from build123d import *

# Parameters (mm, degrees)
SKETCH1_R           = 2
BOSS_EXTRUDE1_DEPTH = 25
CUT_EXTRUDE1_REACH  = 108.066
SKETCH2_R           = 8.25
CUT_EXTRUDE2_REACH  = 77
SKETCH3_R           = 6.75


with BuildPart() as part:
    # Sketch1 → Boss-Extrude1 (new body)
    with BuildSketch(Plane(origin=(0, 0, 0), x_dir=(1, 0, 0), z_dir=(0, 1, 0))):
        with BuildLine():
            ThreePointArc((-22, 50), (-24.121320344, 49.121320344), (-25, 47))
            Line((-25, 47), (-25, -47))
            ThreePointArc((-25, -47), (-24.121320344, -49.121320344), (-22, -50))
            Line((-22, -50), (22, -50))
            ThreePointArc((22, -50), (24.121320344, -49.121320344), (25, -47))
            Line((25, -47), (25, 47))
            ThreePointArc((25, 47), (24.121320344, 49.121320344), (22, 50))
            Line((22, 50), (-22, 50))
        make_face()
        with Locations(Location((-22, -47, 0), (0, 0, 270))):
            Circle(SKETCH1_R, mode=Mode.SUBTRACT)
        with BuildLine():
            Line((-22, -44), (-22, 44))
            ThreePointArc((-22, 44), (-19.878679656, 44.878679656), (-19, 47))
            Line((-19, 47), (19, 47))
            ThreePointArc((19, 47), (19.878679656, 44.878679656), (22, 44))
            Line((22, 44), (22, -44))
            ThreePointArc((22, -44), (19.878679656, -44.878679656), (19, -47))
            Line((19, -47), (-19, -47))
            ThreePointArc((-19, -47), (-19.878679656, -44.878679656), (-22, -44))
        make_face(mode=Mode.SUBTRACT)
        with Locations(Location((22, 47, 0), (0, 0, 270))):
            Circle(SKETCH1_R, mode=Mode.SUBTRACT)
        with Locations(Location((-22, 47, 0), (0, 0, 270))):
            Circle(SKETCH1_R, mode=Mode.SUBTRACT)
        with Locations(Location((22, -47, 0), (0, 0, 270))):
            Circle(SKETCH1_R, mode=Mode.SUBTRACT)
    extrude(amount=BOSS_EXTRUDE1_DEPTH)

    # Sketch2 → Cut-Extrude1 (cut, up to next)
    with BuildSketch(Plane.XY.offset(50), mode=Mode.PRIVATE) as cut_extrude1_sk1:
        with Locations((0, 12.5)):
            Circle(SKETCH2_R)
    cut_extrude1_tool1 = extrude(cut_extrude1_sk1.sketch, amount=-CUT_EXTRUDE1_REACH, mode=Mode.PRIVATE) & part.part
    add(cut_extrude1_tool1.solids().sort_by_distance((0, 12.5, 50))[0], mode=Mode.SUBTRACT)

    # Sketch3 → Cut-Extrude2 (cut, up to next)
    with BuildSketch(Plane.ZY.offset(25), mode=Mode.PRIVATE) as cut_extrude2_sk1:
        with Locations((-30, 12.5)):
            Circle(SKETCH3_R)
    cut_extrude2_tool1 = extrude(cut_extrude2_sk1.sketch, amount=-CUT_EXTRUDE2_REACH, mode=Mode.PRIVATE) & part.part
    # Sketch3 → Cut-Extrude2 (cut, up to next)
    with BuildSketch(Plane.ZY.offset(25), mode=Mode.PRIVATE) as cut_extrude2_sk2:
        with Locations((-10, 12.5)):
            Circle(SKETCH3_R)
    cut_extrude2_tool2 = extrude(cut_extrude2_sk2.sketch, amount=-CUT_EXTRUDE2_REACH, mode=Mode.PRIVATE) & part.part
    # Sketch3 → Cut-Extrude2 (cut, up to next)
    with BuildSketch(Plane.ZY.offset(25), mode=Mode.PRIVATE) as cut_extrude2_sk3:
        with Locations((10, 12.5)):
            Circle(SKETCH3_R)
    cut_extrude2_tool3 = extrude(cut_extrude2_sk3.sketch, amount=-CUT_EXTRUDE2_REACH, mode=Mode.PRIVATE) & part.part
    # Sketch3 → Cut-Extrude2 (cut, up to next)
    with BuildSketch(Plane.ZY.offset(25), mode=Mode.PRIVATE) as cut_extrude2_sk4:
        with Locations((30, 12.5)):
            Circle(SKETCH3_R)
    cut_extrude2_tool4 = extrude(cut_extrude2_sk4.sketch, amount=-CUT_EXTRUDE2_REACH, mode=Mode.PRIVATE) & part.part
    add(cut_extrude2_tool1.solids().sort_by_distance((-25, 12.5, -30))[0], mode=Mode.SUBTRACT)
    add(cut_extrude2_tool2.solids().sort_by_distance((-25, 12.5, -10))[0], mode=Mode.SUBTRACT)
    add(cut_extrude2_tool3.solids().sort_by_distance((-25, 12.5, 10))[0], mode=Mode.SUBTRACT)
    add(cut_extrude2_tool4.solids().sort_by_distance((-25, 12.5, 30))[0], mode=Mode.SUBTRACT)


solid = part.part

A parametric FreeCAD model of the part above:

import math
import FreeCAD as App
import Part
import Sketcher

doc = App.newDocument("Part")
body = doc.addObject("PartDesign::Body", "Body")

# Sketch on XZ plane
sketch1 = doc.addObject("Sketcher::SketchObject", "Sketch")
body.addObject(sketch1)
sketch1.AttachmentSupport = (doc.XZ_Plane, [""])
sketch1.MapMode = "FlatFace"
sketch1.addGeometry(Part.ArcOfCircle(Part.Circle(App.Vector(-22, -47, 0), App.Vector(0, 0, 1), 3), math.radians(180), math.radians(270)), False)
sketch1.addGeometry(Part.LineSegment(App.Vector(-25, -47, 0), App.Vector(-25, 47, 0)), False)
sketch1.addGeometry(Part.ArcOfCircle(Part.Circle(App.Vector(-22, 47, 0), App.Vector(0, 0, 1), 3), math.radians(90), math.radians(180)), False)
sketch1.addGeometry(Part.LineSegment(App.Vector(-22, 50, 0), App.Vector(22, 50, 0)), False)
sketch1.addGeometry(Part.ArcOfCircle(Part.Circle(App.Vector(22, 47, 0), App.Vector(0, 0, 1), 3), math.radians(0), math.radians(90)), False)
sketch1.addGeometry(Part.LineSegment(App.Vector(25, 47, 0), App.Vector(25, -47, 0)), False)
sketch1.addGeometry(Part.ArcOfCircle(Part.Circle(App.Vector(22, -47, 0), App.Vector(0, 0, 1), 3), math.radians(-90), math.radians(0)), False)
sketch1.addGeometry(Part.LineSegment(App.Vector(22, -50, 0), App.Vector(-22, -50, 0)), False)
sketch1.addGeometry(Part.Circle(App.Vector(-22, 47, 0), App.Vector(0, 0, 1), 2), False)
sketch1.addGeometry(Part.Circle(App.Vector(22, 47, 0), App.Vector(0, 0, 1), 2), False)
sketch1.addGeometry(Part.ArcOfCircle(Part.Circle(App.Vector(-22, 47, 0), App.Vector(0, 0, 1), 3), math.radians(-90), math.radians(0)), False)
sketch1.addGeometry(Part.LineSegment(App.Vector(-22, 44, 0), App.Vector(-22, -44, 0)), False)
sketch1.addGeometry(Part.ArcOfCircle(Part.Circle(App.Vector(-22, -47, 0), App.Vector(0, 0, 1), 3), math.radians(0), math.radians(90)), False)
sketch1.addGeometry(Part.LineSegment(App.Vector(-19, -47, 0), App.Vector(19, -47, 0)), False)
sketch1.addGeometry(Part.ArcOfCircle(Part.Circle(App.Vector(22, -47, 0), App.Vector(0, 0, 1), 3), math.radians(90), math.radians(180)), False)
sketch1.addGeometry(Part.LineSegment(App.Vector(22, -44, 0), App.Vector(22, 44, 0)), False)
sketch1.addGeometry(Part.ArcOfCircle(Part.Circle(App.Vector(22, 47, 0), App.Vector(0, 0, 1), 3), math.radians(180), math.radians(270)), False)
sketch1.addGeometry(Part.LineSegment(App.Vector(19, 47, 0), App.Vector(-19, 47, 0)), False)
sketch1.addGeometry(Part.Circle(App.Vector(-22, -47, 0), App.Vector(0, 0, 1), 2), False)
sketch1.addGeometry(Part.Circle(App.Vector(22, -47, 0), App.Vector(0, 0, 1), 2), False)
sketch1.addConstraint(Sketcher.Constraint("Tangent", 0, 1, 1, 1))
sketch1.addConstraint(Sketcher.Constraint("Tangent", 1, 2, 2, 2))
sketch1.addConstraint(Sketcher.Constraint("Tangent", 2, 1, 3, 1))
sketch1.addConstraint(Sketcher.Constraint("Tangent", 3, 2, 4, 2))
sketch1.addConstraint(Sketcher.Constraint("Tangent", 4, 1, 5, 1))
sketch1.addConstraint(Sketcher.Constraint("Tangent", 5, 2, 6, 2))
sketch1.addConstraint(Sketcher.Constraint("Tangent", 6, 1, 7, 1))
sketch1.addConstraint(Sketcher.Constraint("Tangent", 7, 2, 0, 2))
sketch1.addConstraint(Sketcher.Constraint("Coincident", 10, 1, 11, 1))
sketch1.addConstraint(Sketcher.Constraint("Coincident", 11, 2, 12, 2))
sketch1.addConstraint(Sketcher.Constraint("Coincident", 12, 1, 13, 1))
sketch1.addConstraint(Sketcher.Constraint("Coincident", 13, 2, 14, 2))
sketch1.addConstraint(Sketcher.Constraint("Coincident", 14, 1, 15, 1))
sketch1.addConstraint(Sketcher.Constraint("Coincident", 15, 2, 16, 2))
sketch1.addConstraint(Sketcher.Constraint("Coincident", 16, 1, 17, 1))
sketch1.addConstraint(Sketcher.Constraint("Coincident", 17, 2, 10, 2))
sketch1.addConstraint(Sketcher.Constraint("Vertical", 1))
sketch1.addConstraint(Sketcher.Constraint("Horizontal", 3))
sketch1.addConstraint(Sketcher.Constraint("Vertical", 5))
sketch1.addConstraint(Sketcher.Constraint("Horizontal", 7))
sketch1.addConstraint(Sketcher.Constraint("Vertical", 11))
sketch1.addConstraint(Sketcher.Constraint("Horizontal", 13))
sketch1.addConstraint(Sketcher.Constraint("Vertical", 15))
sketch1.addConstraint(Sketcher.Constraint("Horizontal", 17))
sketch1.addConstraint(Sketcher.Constraint("Coincident", 8, 3, 2, 3))
sketch1.addConstraint(Sketcher.Constraint("Coincident", 9, 3, 4, 3))
sketch1.addConstraint(Sketcher.Constraint("Coincident", 10, 3, 2, 3))
sketch1.addConstraint(Sketcher.Constraint("Coincident", 12, 3, 0, 3))
sketch1.addConstraint(Sketcher.Constraint("Coincident", 14, 3, 6, 3))
sketch1.addConstraint(Sketcher.Constraint("Coincident", 16, 3, 4, 3))
sketch1.addConstraint(Sketcher.Constraint("Coincident", 18, 3, 0, 3))
sketch1.addConstraint(Sketcher.Constraint("Coincident", 19, 3, 6, 3))
sketch1.addConstraint(Sketcher.Constraint("Equal", 0, 2))
sketch1.addConstraint(Sketcher.Constraint("Equal", 2, 4))
sketch1.addConstraint(Sketcher.Constraint("Equal", 4, 6))
sketch1.addConstraint(Sketcher.Constraint("Equal", 8, 9))
sketch1.addConstraint(Sketcher.Constraint("Equal", 6, 10))
sketch1.addConstraint(Sketcher.Constraint("Equal", 10, 12))
sketch1.addConstraint(Sketcher.Constraint("Equal", 12, 14))
sketch1.addConstraint(Sketcher.Constraint("Equal", 14, 16))
sketch1.addConstraint(Sketcher.Constraint("Equal", 9, 18))
sketch1.addConstraint(Sketcher.Constraint("Equal", 18, 19))
sketch1.addConstraint(Sketcher.Constraint("Symmetric", 0, 3, 4, 3, -1, 1))
sketch1.addConstraint(Sketcher.Constraint("Horizontal", 5, 2, 12, 1))
sketch1.addConstraint(Sketcher.Constraint("Horizontal", 4, 1, 16, 1))
sketch1.addConstraint(Sketcher.Constraint("Vertical", 7, 2, 10, 1))
sketch1.addConstraint(Sketcher.Constraint("Vertical", 6, 1, 14, 1))
sketch1.addConstraint(Sketcher.Constraint("Diameter", 8, 4.0))
sketch1.addConstraint(Sketcher.Constraint("Radius", 0, 3.0))
sketch1.addConstraint(Sketcher.Constraint("DistanceX", 3, 1, 3, 2, 44.0))
sketch1.addConstraint(Sketcher.Constraint("DistanceY", 1, 1, 1, 2, 94.0))
pad1 = doc.addObject("PartDesign::Pad", "Pad")
body.addObject(pad1)
pad1.Profile = sketch1
pad1.Length = 25
pad1.Reversed = True

# Sketch on XY plane
sketch2 = doc.addObject("Sketcher::SketchObject", "Sketch001")
body.addObject(sketch2)
sketch2.AttachmentSupport = (doc.XY_Plane, [""])
sketch2.MapMode = "FlatFace"
sketch2.AttachmentOffset = App.Placement(App.Vector(0, 0, 50), App.Rotation())
sketch2.addGeometry(Part.Circle(App.Vector(0, 12, 0), App.Vector(0, 0, 1), 8), False)
sketch2.addConstraint(Sketcher.Constraint("PointOnObject", 0, 3, -2))
sketch2.addConstraint(Sketcher.Constraint("Diameter", 0, 16.5))
sketch2.addConstraint(Sketcher.Constraint("DistanceY", -1, 1, 0, 3, 12.5))
pocket1 = doc.addObject("PartDesign::Pocket", "Pocket")
body.addObject(pocket1)
pocket1.Profile = sketch2
pocket1.Type = "UpToFirst"

# Sketch on YZ plane
sketch3 = doc.addObject("Sketcher::SketchObject", "Sketch002")
body.addObject(sketch3)
sketch3.AttachmentSupport = (doc.YZ_Plane, [""])
sketch3.MapMode = "FlatFace"
sketch3.AttachmentOffset = App.Placement(App.Vector(0, 0, -25), App.Rotation())
sketch3.addGeometry(Part.Circle(App.Vector(12, -30, 0), App.Vector(0, 0, 1), 7), False)
sketch3.addConstraint(Sketcher.Constraint("Diameter", 0, 13.5))
sketch3.addConstraint(Sketcher.Constraint("DistanceY", 0, 3, -1, 1, 30.0))
sketch3.addConstraint(Sketcher.Constraint("DistanceX", -1, 1, 0, 3, 12.5))
pocket2 = doc.addObject("PartDesign::Pocket", "Pocket001")
body.addObject(pocket2)
pocket2.Profile = sketch3
pocket2.Type = "UpToFirst"
pocket2.Reversed = True

# Sketch on YZ plane
sketch4 = doc.addObject("Sketcher::SketchObject", "Sketch003")
body.addObject(sketch4)
sketch4.AttachmentSupport = (doc.YZ_Plane, [""])
sketch4.MapMode = "FlatFace"
sketch4.AttachmentOffset = App.Placement(App.Vector(0, 0, -25), App.Rotation())
sketch4.addGeometry(Part.Circle(App.Vector(12, -10, 0), App.Vector(0, 0, 1), 7), False)
sketch4.addConstraint(Sketcher.Constraint("Diameter", 0, 13.5))
sketch4.addConstraint(Sketcher.Constraint("DistanceY", 0, 3, -1, 1, 10.0))
sketch4.addConstraint(Sketcher.Constraint("DistanceX", -1, 1, 0, 3, 12.5))
pocket3 = doc.addObject("PartDesign::Pocket", "Pocket002")
body.addObject(pocket3)
pocket3.Profile = sketch4
pocket3.Type = "UpToFirst"
pocket3.Reversed = True

# Sketch on YZ plane
sketch5 = doc.addObject("Sketcher::SketchObject", "Sketch004")
body.addObject(sketch5)
sketch5.AttachmentSupport = (doc.YZ_Plane, [""])
sketch5.MapMode = "FlatFace"
sketch5.AttachmentOffset = App.Placement(App.Vector(0, 0, -25), App.Rotation())
sketch5.addGeometry(Part.Circle(App.Vector(12, 10, 0), App.Vector(0, 0, 1), 7), False)
sketch5.addConstraint(Sketcher.Constraint("Diameter", 0, 13.5))
sketch5.addConstraint(Sketcher.Constraint("DistanceY", -1, 1, 0, 3, 10.0))
sketch5.addConstraint(Sketcher.Constraint("DistanceX", -1, 1, 0, 3, 12.5))
pocket4 = doc.addObject("PartDesign::Pocket", "Pocket003")
body.addObject(pocket4)
pocket4.Profile = sketch5
pocket4.Type = "UpToFirst"
pocket4.Reversed = True

# Sketch on YZ plane
sketch6 = doc.addObject("Sketcher::SketchObject", "Sketch005")
body.addObject(sketch6)
sketch6.AttachmentSupport = (doc.YZ_Plane, [""])
sketch6.MapMode = "FlatFace"
sketch6.AttachmentOffset = App.Placement(App.Vector(0, 0, -25), App.Rotation())
sketch6.addGeometry(Part.Circle(App.Vector(12, 30, 0), App.Vector(0, 0, 1), 7), False)
sketch6.addConstraint(Sketcher.Constraint("Diameter", 0, 13.5))
sketch6.addConstraint(Sketcher.Constraint("DistanceY", -1, 1, 0, 3, 30.0))
sketch6.addConstraint(Sketcher.Constraint("DistanceX", -1, 1, 0, 3, 12.5))
pocket5 = doc.addObject("PartDesign::Pocket", "Pocket004")
body.addObject(pocket5)
pocket5.Profile = sketch6
pocket5.Type = "UpToFirst"
pocket5.Reversed = True

doc.recompute()
